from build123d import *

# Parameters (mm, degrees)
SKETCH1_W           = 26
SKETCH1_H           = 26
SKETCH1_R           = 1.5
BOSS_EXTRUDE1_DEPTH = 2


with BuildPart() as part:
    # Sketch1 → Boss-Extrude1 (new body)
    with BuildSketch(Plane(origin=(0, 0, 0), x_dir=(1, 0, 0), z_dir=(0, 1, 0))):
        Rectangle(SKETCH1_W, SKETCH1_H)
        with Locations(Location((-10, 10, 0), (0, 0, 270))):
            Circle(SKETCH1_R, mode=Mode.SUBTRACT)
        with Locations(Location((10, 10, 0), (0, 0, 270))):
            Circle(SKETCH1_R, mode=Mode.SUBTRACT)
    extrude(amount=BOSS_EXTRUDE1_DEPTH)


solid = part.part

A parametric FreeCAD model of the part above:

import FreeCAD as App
import Part
import Sketcher


def add_polygon(sketch, points):
    """Adds a closed chain of lines whose ends are joined by coincident constraints."""
    first, n = sketch.GeometryCount, len(points)
    for a, b in zip(points, points[1:] + points[:1]):
        sketch.addGeometry(Part.LineSegment(App.Vector(*a, 0), App.Vector(*b, 0)), False)
    for i in range(n):
        sketch.addConstraint(Sketcher.Constraint("Coincident", first + i, 2, first + (i + 1) % n, 1))

doc = App.newDocument("Part")
body = doc.addObject("PartDesign::Body", "Body")

# Sketch on XZ plane
sketch1 = doc.addObject("Sketcher::SketchObject", "Sketch")
body.addObject(sketch1)
sketch1.AttachmentSupport = (doc.XZ_Plane, [""])
sketch1.MapMode = "FlatFace"
add_polygon(sketch1, [(-13, -13), (-13, 13), (13, 13), (13, -13)])  # lines 0-3
sketch1.addGeometry(Part.Circle(App.Vector(-10, -10, 0), App.Vector(0, 0, 1), 1.5), False)  # 4
sketch1.addGeometry(Part.Circle(App.Vector(10, -10, 0), App.Vector(0, 0, 1), 1.5), False)  # 5
sketch1.addConstraint(Sketcher.Constraint("Vertical", 0))
sketch1.addConstraint(Sketcher.Constraint("Horizontal", 1))
sketch1.addConstraint(Sketcher.Constraint("Vertical", 2))
sketch1.addConstraint(Sketcher.Constraint("Horizontal", 3))
sketch1.addConstraint(Sketcher.Constraint("Equal", 4, 5))
sketch1.addConstraint(Sketcher.Constraint("Symmetric", 0, 2, 2, 2, -1, 1))
sketch1.addConstraint(Sketcher.Constraint("Symmetric", 4, 3, 5, 3, -2))
sketch1.addConstraint(Sketcher.Constraint("Equal", 3, 0))
sketch1.addConstraint(Sketcher.Constraint("Diameter", 4, 3.0))
sketch1.addConstraint(Sketcher.Constraint("DistanceX", 1, 1, 1, 2, 26.0))
sketch1.addConstraint(Sketcher.Constraint("DistanceX", 4, 3, -1, 1, 10.0))
sketch1.addConstraint(Sketcher.Constraint("DistanceY", 4, 3, -1, 1, 10.0))
pad1 = doc.addObject("PartDesign::Pad", "Pad")
body.addObject(pad1)
pad1.Profile = sketch1
pad1.Length = 2
pad1.Reversed = True

doc.recompute()
